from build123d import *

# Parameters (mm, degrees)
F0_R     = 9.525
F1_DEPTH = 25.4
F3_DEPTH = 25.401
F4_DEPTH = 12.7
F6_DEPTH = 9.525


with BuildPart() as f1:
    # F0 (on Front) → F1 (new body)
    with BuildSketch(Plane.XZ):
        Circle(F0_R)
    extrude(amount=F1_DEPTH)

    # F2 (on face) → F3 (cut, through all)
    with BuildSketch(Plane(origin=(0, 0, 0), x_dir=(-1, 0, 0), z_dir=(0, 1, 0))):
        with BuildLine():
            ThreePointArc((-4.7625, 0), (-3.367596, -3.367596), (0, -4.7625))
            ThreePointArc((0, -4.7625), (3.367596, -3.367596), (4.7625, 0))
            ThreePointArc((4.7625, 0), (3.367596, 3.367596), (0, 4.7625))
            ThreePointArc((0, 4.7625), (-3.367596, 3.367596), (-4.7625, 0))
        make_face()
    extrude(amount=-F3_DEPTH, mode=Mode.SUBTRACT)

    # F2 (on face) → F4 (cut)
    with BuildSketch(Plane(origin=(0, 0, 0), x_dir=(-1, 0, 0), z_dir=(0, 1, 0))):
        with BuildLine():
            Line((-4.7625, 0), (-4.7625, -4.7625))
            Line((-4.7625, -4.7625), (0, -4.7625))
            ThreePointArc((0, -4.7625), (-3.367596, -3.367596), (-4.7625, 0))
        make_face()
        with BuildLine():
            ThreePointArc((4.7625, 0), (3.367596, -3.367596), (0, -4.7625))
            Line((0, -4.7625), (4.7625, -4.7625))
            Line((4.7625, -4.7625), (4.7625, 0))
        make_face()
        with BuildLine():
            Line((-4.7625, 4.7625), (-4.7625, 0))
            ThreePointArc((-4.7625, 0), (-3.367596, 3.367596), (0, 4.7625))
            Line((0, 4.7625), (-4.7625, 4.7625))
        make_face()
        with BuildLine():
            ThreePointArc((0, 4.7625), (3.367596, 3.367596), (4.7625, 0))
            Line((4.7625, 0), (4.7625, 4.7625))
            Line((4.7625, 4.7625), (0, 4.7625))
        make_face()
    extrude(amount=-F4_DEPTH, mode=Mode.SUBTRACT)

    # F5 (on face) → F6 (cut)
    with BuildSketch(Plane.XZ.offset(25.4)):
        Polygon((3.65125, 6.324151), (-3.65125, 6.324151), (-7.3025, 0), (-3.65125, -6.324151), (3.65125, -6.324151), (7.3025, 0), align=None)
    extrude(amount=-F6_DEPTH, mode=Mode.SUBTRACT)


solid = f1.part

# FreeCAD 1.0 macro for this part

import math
import FreeCAD as App
import Part
import Sketcher
Q = App.Units.Quantity


def add_polygon(sketch, points):
    """Adds a closed chain of lines whose ends are joined by coincident constraints."""
    first, n = sketch.GeometryCount, len(points)
    for a, b in zip(points, points[1:] + points[:1]):
        sketch.addGeometry(Part.LineSegment(App.Vector(*a, 0), App.Vector(*b, 0)), False)
    for i in range(n):
        sketch.addConstraint(Sketcher.Constraint("Coincident", first + i, 2, first + (i + 1) % n, 1))

doc = App.newDocument("Part")
params = doc.addObject("Spreadsheet::Sheet", "Params")
for row, (alias, value) in enumerate([
    ("sketch1_diameter", "0.75 in"),
    ("pad1_length", "1 in"),
    ("sketch2_radius", "0.1875 in"),
    ("sketch3_radius", "0.1875 in"),
    ("pocket2_length", "0.5 in"),
    ("pocket3_length", "0.375 in"),
], start=1):
    params.set(f"A{row}", alias)
    params.set(f"B{row}", "=" + value)
    params.setAlias(f"B{row}", alias)

body = doc.addObject("PartDesign::Body", "Body")

# Sketch on XZ plane
sketch1 = doc.addObject("Sketcher::SketchObject", "Sketch")
body.addObject(sketch1)
sketch1.AttachmentSupport = (doc.XZ_Plane, [""])
sketch1.MapMode = "FlatFace"
sketch1.addGeometry(Part.Circle(App.Vector(0, 0, 0), App.Vector(0, 0, 1), 10), False)
sketch1.addConstraint([
    Sketcher.Constraint("Coincident", 0, 3, -1, 1),
    Sketcher.Constraint("Diameter", 0, Q("0.75 in")),
])
sketch1.setExpression("Constraints[1]", "Params.sketch1_diameter")
pad1 = doc.addObject("PartDesign::Pad", "Pad")
body.addObject(pad1)
pad1.Profile = sketch1
pad1.setExpression("Length", "Params.pad1_length")

# Sketch on XZ plane
sketch2 = doc.addObject("Sketcher::SketchObject", "Sketch001")
body.addObject(sketch2)
sketch2.AttachmentSupport = (doc.XZ_Plane, [""])
sketch2.MapMode = "FlatFace"
sketch2.addGeometry([
    Part.ArcOfCircle(Part.Circle(App.Vector(0, 0, 0), App.Vector(0, 0, 1), 4.8), math.radians(-90), math.radians(0)),
    Part.ArcOfCircle(Part.Circle(App.Vector(0, 0, 0), App.Vector(0, 0, 1), 4.8), math.radians(-180), math.radians(-90)),
    Part.ArcOfCircle(Part.Circle(App.Vector(0, 0, 0), App.Vector(0, 0, 1), 4.8), math.radians(90), math.radians(180)),
    Part.ArcOfCircle(Part.Circle(App.Vector(0, 0, 0), App.Vector(0, 0, 1), 4.8), math.radians(0), math.radians(90)),
], False)
sketch2.addConstraint([
    Sketcher.Constraint("Tangent", 0, 1, 1, 2),
    Sketcher.Constraint("Tangent", 1, 1, 2, 2),
    Sketcher.Constraint("Tangent", 2, 1, 3, 2),
    Sketcher.Constraint("Tangent", 3, 1, 0, 2),
    Sketcher.Constraint("Coincident", 0, 3, -1, 1),
    Sketcher.Constraint("Equal", 0, 1),
    Sketcher.Constraint("PointOnObject", 0, 1, -2),
    Sketcher.Constraint("PointOnObject", 1, 1, -1),
    Sketcher.Constraint("PointOnObject", 2, 1, -2),
    Sketcher.Constraint("PointOnObject", 3, 1, -1),
    Sketcher.Constraint("Radius", 0, Q("0.1875 in")),
])
sketch2.setExpression("Constraints[10]", "Params.sketch2_radius")
pocket1 = doc.addObject("PartDesign::Pocket", "Pocket")
body.addObject(pocket1)
pocket1.Profile = sketch2
pocket1.Type = "ThroughAll"
pocket1.Reversed = True

# Sketch on XZ plane
sketch3 = doc.addObject("Sketcher::SketchObject", "Sketch002")
body.addObject(sketch3)
sketch3.AttachmentSupport = (doc.XZ_Plane, [""])
sketch3.MapMode = "FlatFace"
sketch3.addGeometry([
    Part.LineSegment(App.Vector(4.8, 0, 0), App.Vector(4.8, -4.8, 0)),  # 0
    Part.LineSegment(App.Vector(4.8, -4.8, 0), App.Vector(0, -4.8, 0)),  # 1
    Part.ArcOfCircle(Part.Circle(App.Vector(0, 0, 0), App.Vector(0, 0, 1), 4.8), math.radians(-90), math.radians(0)),  # 2
    Part.ArcOfCircle(Part.Circle(App.Vector(0, 0, 0), App.Vector(0, 0, 1), 4.8), math.radians(-180), math.radians(-90)),  # 3
    Part.LineSegment(App.Vector(0, -4.8, 0), App.Vector(-4.8, -4.8, 0)),  # 4
    Part.LineSegment(App.Vector(-4.8, -4.8, 0), App.Vector(-4.8, 0, 0)),  # 5
    Part.LineSegment(App.Vector(4.8, 4.8, 0), App.Vector(4.8, 0, 0)),  # 6
    Part.ArcOfCircle(Part.Circle(App.Vector(0, 0, 0), App.Vector(0, 0, 1), 4.8), math.radians(0), math.radians(90)),  # 7
    Part.LineSegment(App.Vector(0, 4.8, 0), App.Vector(4.8, 4.8, 0)),  # 8
    Part.ArcOfCircle(Part.Circle(App.Vector(0, 0, 0), App.Vector(0, 0, 1), 4.8), math.radians(90), math.radians(180)),  # 9
    Part.LineSegment(App.Vector(-4.8, 0, 0), App.Vector(-4.8, 4.8, 0)),  # 10
    Part.LineSegment(App.Vector(-4.8, 4.8, 0), App.Vector(0, 4.8, 0)),  # 11
], False)
sketch3.addConstraint([
    Sketcher.Constraint("Coincident", 0, 2, 1, 1),
    Sketcher.Constraint("Tangent", 1, 2, 2, 1),
    Sketcher.Constraint("Tangent", 2, 2, 0, 1),
    Sketcher.Constraint("Tangent", 3, 2, 4, 1),
    Sketcher.Constraint("Coincident", 4, 2, 5, 1),
    Sketcher.Constraint("Tangent", 5, 2, 3, 1),
    Sketcher.Constraint("Tangent", 6, 2, 7, 1),
    Sketcher.Constraint("Tangent", 7, 2, 8, 1),
    Sketcher.Constraint("Coincident", 8, 2, 6, 1),
    Sketcher.Constraint("Tangent", 9, 2, 10, 1),
    Sketcher.Constraint("Coincident", 10, 2, 11, 1),
    Sketcher.Constraint("Tangent", 11, 2, 9, 1),
    Sketcher.Constraint("Vertical", 0),
    Sketcher.Constraint("Horizontal", 1),
    Sketcher.Constraint("Horizontal", 4),
    Sketcher.Constraint("Vertical", 5),
    Sketcher.Constraint("Vertical", 6),
    Sketcher.Constraint("Horizontal", 8),
    Sketcher.Constraint("Vertical", 10),
    Sketcher.Constraint("Horizontal", 11),
    Sketcher.Constraint("Coincident", 2, 3, -1, 1),
    Sketcher.Constraint("Coincident", 3, 3, -1, 1),
    Sketcher.Constraint("Coincident", 7, 3, -1, 1),
    Sketcher.Constraint("Coincident", 9, 3, -1, 1),
    Sketcher.Constraint("Equal", 2, 3),
    Sketcher.Constraint("Equal", 3, 7),
    Sketcher.Constraint("Equal", 7, 9),
    Sketcher.Constraint("Radius", 2, Q("0.1875 in")),
])
sketch3.setExpression("Constraints[27]", "Params.sketch3_radius")
pocket2 = doc.addObject("PartDesign::Pocket", "Pocket001")
body.addObject(pocket2)
pocket2.Profile = sketch3
pocket2.setExpression("Length", "Params.pocket2_length")
pocket2.Reversed = True

# Sketch on XZ plane
sketch4 = doc.addObject("Sketcher::SketchObject", "Sketch003")
body.addObject(sketch4)
sketch4.AttachmentSupport = (doc.XZ_Plane, [""])
sketch4.MapMode = "FlatFace"
sketch4.AttachmentOffset = App.Placement(App.Vector(0, 0, 1 * 25.4), App.Rotation())
add_polygon(sketch4, [(4, 6), (-4, 6), (-7, 0), (-4, -6), (4, -6), (7, 0)])  # lines 0-5
sketch4.addConstraint([
    Sketcher.Constraint("Horizontal", 0),
    Sketcher.Constraint("Horizontal", 3),
    Sketcher.Constraint("Symmetric", 0, 2, 3, 2, -1, 1),
    Sketcher.Constraint("Symmetric", 1, 2, 4, 2, -1, 1),
    Sketcher.Constraint("PointOnObject", 1, 2, -1),
    Sketcher.Constraint("Parallel", 2, 5),
    Sketcher.Constraint("Vertical", 0, 2, 2, 2),
    Sketcher.Constraint("Angle", 1, Q("-119.999998 deg")),
    Sketcher.Constraint("DistanceX", 0, 2, 0, 1, Q("0.2875 in")),
    Sketcher.Constraint("DistanceX", 1, 2, 4, 2, Q("0.575 in")),
])
pocket3 = doc.addObject("PartDesign::Pocket", "Pocket002")
body.addObject(pocket3)
pocket3.Profile = sketch4
pocket3.setExpression("Length", "Params.pocket3_length")

doc.recompute()
